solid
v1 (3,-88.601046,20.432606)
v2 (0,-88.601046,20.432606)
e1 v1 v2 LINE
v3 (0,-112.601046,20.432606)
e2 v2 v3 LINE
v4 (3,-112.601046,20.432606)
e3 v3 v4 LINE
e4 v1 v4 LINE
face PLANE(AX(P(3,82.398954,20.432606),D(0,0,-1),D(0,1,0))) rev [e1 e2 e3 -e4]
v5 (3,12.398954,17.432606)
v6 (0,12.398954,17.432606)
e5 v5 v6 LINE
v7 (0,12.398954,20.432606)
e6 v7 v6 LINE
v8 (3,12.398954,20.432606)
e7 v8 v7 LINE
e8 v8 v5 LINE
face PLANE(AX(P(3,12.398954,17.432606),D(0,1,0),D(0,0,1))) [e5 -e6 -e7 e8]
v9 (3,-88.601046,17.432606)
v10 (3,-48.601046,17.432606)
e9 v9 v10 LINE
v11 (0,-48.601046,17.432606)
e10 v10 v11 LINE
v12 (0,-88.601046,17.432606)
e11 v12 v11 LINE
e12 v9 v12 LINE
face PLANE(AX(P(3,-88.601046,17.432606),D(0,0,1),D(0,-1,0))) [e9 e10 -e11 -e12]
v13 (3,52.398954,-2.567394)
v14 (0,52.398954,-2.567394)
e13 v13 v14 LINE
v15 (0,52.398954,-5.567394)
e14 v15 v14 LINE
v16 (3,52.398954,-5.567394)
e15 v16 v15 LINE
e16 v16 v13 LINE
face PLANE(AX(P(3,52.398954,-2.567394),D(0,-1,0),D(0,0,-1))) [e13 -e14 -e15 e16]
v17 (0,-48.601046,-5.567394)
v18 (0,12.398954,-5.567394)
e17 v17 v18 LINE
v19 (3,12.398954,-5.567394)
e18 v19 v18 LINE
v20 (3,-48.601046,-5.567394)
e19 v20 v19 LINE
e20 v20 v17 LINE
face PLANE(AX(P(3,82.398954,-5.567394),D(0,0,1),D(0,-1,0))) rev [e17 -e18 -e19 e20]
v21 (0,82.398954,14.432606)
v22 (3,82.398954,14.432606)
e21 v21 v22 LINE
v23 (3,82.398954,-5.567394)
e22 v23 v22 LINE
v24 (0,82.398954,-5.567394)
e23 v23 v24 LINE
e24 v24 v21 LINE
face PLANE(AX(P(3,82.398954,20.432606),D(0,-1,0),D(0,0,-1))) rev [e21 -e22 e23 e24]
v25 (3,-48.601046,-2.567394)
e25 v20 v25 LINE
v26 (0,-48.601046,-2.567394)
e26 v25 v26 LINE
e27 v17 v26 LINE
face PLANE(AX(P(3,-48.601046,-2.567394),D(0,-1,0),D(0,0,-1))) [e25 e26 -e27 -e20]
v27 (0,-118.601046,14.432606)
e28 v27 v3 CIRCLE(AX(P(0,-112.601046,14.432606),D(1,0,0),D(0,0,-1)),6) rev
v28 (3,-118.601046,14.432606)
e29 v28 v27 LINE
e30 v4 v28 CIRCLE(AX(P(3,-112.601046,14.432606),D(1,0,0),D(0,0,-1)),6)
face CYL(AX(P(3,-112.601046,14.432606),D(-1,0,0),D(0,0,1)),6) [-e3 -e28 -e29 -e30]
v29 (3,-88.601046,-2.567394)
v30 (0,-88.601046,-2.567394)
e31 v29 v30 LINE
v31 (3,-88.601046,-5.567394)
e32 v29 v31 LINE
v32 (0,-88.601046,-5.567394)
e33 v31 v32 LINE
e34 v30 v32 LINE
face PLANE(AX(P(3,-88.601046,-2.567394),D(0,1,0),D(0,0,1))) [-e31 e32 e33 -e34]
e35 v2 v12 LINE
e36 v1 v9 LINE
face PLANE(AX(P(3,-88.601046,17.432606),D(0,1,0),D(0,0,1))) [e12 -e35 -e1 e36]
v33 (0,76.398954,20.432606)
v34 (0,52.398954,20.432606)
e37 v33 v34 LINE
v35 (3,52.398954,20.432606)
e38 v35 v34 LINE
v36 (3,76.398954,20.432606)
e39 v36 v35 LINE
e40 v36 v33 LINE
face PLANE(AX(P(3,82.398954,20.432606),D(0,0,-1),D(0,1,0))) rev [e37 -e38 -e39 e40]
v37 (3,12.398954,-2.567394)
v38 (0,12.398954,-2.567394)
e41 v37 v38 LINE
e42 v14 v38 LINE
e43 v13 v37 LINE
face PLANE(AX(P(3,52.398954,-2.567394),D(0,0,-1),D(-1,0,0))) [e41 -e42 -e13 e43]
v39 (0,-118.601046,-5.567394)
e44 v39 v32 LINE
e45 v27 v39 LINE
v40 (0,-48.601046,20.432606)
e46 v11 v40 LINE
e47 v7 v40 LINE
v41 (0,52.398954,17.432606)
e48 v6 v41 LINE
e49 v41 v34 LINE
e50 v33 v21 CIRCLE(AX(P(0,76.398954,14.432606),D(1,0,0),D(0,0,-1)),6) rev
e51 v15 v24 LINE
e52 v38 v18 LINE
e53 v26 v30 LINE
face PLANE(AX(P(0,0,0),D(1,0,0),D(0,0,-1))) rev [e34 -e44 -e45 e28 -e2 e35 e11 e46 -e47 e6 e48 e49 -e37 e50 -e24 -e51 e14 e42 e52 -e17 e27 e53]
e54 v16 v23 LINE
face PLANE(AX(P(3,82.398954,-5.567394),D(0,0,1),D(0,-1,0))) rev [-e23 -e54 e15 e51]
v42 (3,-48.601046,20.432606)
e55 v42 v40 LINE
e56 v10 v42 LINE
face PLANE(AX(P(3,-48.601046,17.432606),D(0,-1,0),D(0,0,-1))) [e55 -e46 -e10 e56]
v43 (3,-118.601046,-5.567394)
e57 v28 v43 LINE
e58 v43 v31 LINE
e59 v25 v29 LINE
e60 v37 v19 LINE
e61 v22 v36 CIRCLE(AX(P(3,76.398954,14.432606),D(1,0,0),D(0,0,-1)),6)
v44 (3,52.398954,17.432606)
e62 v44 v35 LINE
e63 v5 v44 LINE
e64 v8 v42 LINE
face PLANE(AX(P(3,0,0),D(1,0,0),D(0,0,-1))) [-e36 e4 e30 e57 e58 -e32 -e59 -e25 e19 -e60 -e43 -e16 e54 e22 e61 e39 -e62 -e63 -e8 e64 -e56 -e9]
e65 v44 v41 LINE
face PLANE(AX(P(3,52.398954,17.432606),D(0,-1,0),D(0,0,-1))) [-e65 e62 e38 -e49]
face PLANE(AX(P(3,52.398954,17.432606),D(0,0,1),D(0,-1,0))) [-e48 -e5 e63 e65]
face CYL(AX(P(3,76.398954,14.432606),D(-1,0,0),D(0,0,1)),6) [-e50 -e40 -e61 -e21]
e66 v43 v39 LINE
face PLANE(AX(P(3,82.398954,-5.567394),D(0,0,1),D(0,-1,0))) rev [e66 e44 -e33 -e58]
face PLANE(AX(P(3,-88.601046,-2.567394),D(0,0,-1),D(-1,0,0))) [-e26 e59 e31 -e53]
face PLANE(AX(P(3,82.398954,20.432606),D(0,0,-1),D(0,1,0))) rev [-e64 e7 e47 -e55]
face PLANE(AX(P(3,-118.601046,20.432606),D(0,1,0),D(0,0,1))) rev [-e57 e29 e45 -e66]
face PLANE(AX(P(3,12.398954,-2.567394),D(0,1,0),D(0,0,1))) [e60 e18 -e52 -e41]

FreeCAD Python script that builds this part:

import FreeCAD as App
import Part
import Sketcher
from FreeCAD import Vector
Q = App.Units.Quantity


def edges_at(feature, points):
    """Names of the edges that pass closest to the given points."""
    edges = feature.Shape.Edges
    near = lambda p: min(range(len(edges)), key=lambda i: edges[i].distToShape(Part.Vertex(*p))[0])
    return sorted({f"Edge{near(p) + 1}" for p in points})

doc = App.newDocument("Part")
params = doc.addObject("Spreadsheet::Sheet", "Params")
for row, (alias, value) in enumerate([
    ("sketch1_width", "201 mm"),
    ("sketch1_height", "26 mm"),
    ("pad1_length", "3 mm"),
    ("sketch2_width", "40 mm"),
    ("sketch2_height", "3 mm"),
    ("pocket1_length", "3 mm"),
    ("fillet_radius", "6 mm"),
    ("fillet2_radius", "6 mm"),
], start=1):
    params.set(f"A{row}", alias)
    params.set(f"B{row}", "=" + value)
    params.setAlias(f"B{row}", alias)

body = doc.addObject("PartDesign::Body", "Body")

# Sketch on YZ plane
sketch1 = doc.addObject("Sketcher::SketchObject", "Sketch")
body.addObject(sketch1)
sketch1.AttachmentSupport = (doc.YZ_Plane, [""])
sketch1.MapMode = "FlatFace"
sketch1.addGeometry([
    Part.LineSegment(Vector(82, 20, 0), Vector(-119, 20, 0)),
    Part.LineSegment(Vector(-119, 20, 0), Vector(-119, -6, 0)),
    Part.LineSegment(Vector(-119, -6, 0), Vector(82, -6, 0)),
    Part.LineSegment(Vector(82, -6, 0), Vector(82, 20, 0)),
], False)
sketch1.addConstraint([
    Sketcher.Constraint("Coincident", 0, 2, 1, 1),
    Sketcher.Constraint("Coincident", 1, 2, 2, 1),
    Sketcher.Constraint("Coincident", 2, 2, 3, 1),
    Sketcher.Constraint("Coincident", 3, 2, 0, 1),
    Sketcher.Constraint("Horizontal", 0),
    Sketcher.Constraint("Vertical", 1),
    Sketcher.Constraint("Horizontal", 2),
    Sketcher.Constraint("Vertical", 3),
    Sketcher.Constraint("DistanceX", 0, 2, 0, 1, Q("201 mm")),
    Sketcher.Constraint("DistanceY", 1, 2, 1, 1, Q("26 mm")),
    Sketcher.Constraint("DistanceX", 0, 2, -1, 1, Q("118.601046 mm")),
    Sketcher.Constraint("DistanceY", -1, 1, 0, 2, Q("20.432606 mm")),
])
sketch1.setExpression("Constraints[8]", "Params.sketch1_width")
sketch1.setExpression("Constraints[9]", "Params.sketch1_height")
pad1 = doc.addObject("PartDesign::Pad", "Pad")
body.addObject(pad1)
pad1.Profile = sketch1
pad1.setExpression("Length", "Params.pad1_length")

# Sketch on YZ plane
sketch2 = doc.addObject("Sketcher::SketchObject", "Sketch001")
body.addObject(sketch2)
sketch2.AttachmentSupport = (doc.YZ_Plane, [""])
sketch2.MapMode = "FlatFace"
sketch2.addGeometry([
    Part.LineSegment(Vector(-48.6, -2.6, 0), Vector(-88.6, -2.6, 0)),  # 0
    Part.LineSegment(Vector(-88.6, -2.6, 0), Vector(-88.6, -5.6, 0)),  # 1
    Part.LineSegment(Vector(-88.6, -5.6, 0), Vector(-48.6, -5.6, 0)),  # 2
    Part.LineSegment(Vector(-48.6, -5.6, 0), Vector(-48.6, -2.6, 0)),  # 3
    Part.LineSegment(Vector(-48.6, 20.4, 0), Vector(-88.6, 20.4, 0)),  # 4
    Part.LineSegment(Vector(-88.6, 20.4, 0), Vector(-88.6, 17.4, 0)),  # 5
    Part.LineSegment(Vector(-88.6, 17.4, 0), Vector(-48.6, 17.4, 0)),  # 6
    Part.LineSegment(Vector(-48.6, 17.4, 0), Vector(-48.6, 20.4, 0)),  # 7
    Part.LineSegment(Vector(52.4, 20.4, 0), Vector(12.4, 20.4, 0)),  # 8
    Part.LineSegment(Vector(12.4, 20.4, 0), Vector(12.4, 17.4, 0)),  # 9
    Part.LineSegment(Vector(12.4, 17.4, 0), Vector(52.4, 17.4, 0)),  # 10
    Part.LineSegment(Vector(52.4, 17.4, 0), Vector(52.4, 20.4, 0)),  # 11
    Part.LineSegment(Vector(52.4, -2.6, 0), Vector(12.4, -2.6, 0)),  # 12
    Part.LineSegment(Vector(12.4, -2.6, 0), Vector(12.4, -5.6, 0)),  # 13
    Part.LineSegment(Vector(12.4, -5.6, 0), Vector(52.4, -5.6, 0)),  # 14
    Part.LineSegment(Vector(52.4, -5.6, 0), Vector(52.4, -2.6, 0)),  # 15
], False)
sketch2.addConstraint([
    Sketcher.Constraint("Coincident", 0, 2, 1, 1),
    Sketcher.Constraint("Coincident", 1, 2, 2, 1),
    Sketcher.Constraint("Coincident", 2, 2, 3, 1),
    Sketcher.Constraint("Coincident", 3, 2, 0, 1),
    Sketcher.Constraint("Coincident", 4, 2, 5, 1),
    Sketcher.Constraint("Coincident", 5, 2, 6, 1),
    Sketcher.Constraint("Coincident", 6, 2, 7, 1),
    Sketcher.Constraint("Coincident", 7, 2, 4, 1),
    Sketcher.Constraint("Coincident", 8, 2, 9, 1),
    Sketcher.Constraint("Coincident", 9, 2, 10, 1),
    Sketcher.Constraint("Coincident", 10, 2, 11, 1),
    Sketcher.Constraint("Coincident", 11, 2, 8, 1),
    Sketcher.Constraint("Coincident", 12, 2, 13, 1),
    Sketcher.Constraint("Coincident", 13, 2, 14, 1),
    Sketcher.Constraint("Coincident", 14, 2, 15, 1),
    Sketcher.Constraint("Coincident", 15, 2, 12, 1),
    Sketcher.Constraint("Horizontal", 0),
    Sketcher.Constraint("Vertical", 1),
    Sketcher.Constraint("Horizontal", 2),
    Sketcher.Constraint("Vertical", 3),
    Sketcher.Constraint("Horizontal", 4),
    Sketcher.Constraint("Vertical", 5),
    Sketcher.Constraint("Horizontal", 6),
    Sketcher.Constraint("Vertical", 7),
    Sketcher.Constraint("Horizontal", 8),
    Sketcher.Constraint("Vertical", 9),
    Sketcher.Constraint("Horizontal", 10),
    Sketcher.Constraint("Vertical", 11),
    Sketcher.Constraint("Horizontal", 12),
    Sketcher.Constraint("Vertical", 13),
    Sketcher.Constraint("Horizontal", 14),
    Sketcher.Constraint("Vertical", 15),
    Sketcher.Constraint("Horizontal", 7, 2, 8, 2),
    Sketcher.Constraint("Horizontal", 6, 2, 9, 2),
    Sketcher.Constraint("Horizontal", 3, 2, 12, 2),
    Sketcher.Constraint("Horizontal", 2, 2, 13, 2),
    Sketcher.Constraint("Vertical", 1, 2, 4, 2),
    Sketcher.Constraint("Vertical", 3, 2, 6, 2),
    Sketcher.Constraint("Vertical", 9, 2, 12, 2),
    Sketcher.Constraint("Vertical", 11, 2, 14, 2),
    Sketcher.Constraint("Equal", 6, 8),
    Sketcher.Constraint("Equal", 3, 5),
    Sketcher.Constraint("DistanceX", 0, 2, 0, 1, Q("40 mm")),
    Sketcher.Constraint("DistanceY", 1, 2, 1, 1, Q("3 mm")),
    Sketcher.Constraint("DistanceY", 0, 2, 4, 2, Q("23 mm")),
    Sketcher.Constraint("DistanceX", 7, 2, 8, 2, Q("61 mm")),
    Sketcher.Constraint("DistanceX", 0, 2, -1, 1, Q("88.601046 mm")),
    Sketcher.Constraint("DistanceY", 0, 2, -1, 1, Q("2.567394 mm")),
])
sketch2.setExpression("Constraints[42]", "Params.sketch2_width")
sketch2.setExpression("Constraints[43]", "Params.sketch2_height")
pocket1 = doc.addObject("PartDesign::Pocket", "Pocket")
body.addObject(pocket1)
pocket1.Profile = sketch2
pocket1.setExpression("Length", "Params.pocket1_length")
pocket1.Reversed = True
doc.recompute()

fillet = doc.addObject("PartDesign::Fillet", "Fillet")
body.addObject(fillet)
fillet.Base = (pocket1, edges_at(pocket1, [(1.5, -118.601, 20.433)]))
fillet.setExpression("Radius", "Params.fillet_radius")
doc.recompute()

fillet2 = doc.addObject("PartDesign::Fillet", "Fillet001")
body.addObject(fillet2)
fillet2.Base = (fillet, edges_at(fillet, [(1.5, 82.399, 20.433)]))
fillet2.setExpression("Radius", "Params.fillet2_radius")

doc.recompute()
